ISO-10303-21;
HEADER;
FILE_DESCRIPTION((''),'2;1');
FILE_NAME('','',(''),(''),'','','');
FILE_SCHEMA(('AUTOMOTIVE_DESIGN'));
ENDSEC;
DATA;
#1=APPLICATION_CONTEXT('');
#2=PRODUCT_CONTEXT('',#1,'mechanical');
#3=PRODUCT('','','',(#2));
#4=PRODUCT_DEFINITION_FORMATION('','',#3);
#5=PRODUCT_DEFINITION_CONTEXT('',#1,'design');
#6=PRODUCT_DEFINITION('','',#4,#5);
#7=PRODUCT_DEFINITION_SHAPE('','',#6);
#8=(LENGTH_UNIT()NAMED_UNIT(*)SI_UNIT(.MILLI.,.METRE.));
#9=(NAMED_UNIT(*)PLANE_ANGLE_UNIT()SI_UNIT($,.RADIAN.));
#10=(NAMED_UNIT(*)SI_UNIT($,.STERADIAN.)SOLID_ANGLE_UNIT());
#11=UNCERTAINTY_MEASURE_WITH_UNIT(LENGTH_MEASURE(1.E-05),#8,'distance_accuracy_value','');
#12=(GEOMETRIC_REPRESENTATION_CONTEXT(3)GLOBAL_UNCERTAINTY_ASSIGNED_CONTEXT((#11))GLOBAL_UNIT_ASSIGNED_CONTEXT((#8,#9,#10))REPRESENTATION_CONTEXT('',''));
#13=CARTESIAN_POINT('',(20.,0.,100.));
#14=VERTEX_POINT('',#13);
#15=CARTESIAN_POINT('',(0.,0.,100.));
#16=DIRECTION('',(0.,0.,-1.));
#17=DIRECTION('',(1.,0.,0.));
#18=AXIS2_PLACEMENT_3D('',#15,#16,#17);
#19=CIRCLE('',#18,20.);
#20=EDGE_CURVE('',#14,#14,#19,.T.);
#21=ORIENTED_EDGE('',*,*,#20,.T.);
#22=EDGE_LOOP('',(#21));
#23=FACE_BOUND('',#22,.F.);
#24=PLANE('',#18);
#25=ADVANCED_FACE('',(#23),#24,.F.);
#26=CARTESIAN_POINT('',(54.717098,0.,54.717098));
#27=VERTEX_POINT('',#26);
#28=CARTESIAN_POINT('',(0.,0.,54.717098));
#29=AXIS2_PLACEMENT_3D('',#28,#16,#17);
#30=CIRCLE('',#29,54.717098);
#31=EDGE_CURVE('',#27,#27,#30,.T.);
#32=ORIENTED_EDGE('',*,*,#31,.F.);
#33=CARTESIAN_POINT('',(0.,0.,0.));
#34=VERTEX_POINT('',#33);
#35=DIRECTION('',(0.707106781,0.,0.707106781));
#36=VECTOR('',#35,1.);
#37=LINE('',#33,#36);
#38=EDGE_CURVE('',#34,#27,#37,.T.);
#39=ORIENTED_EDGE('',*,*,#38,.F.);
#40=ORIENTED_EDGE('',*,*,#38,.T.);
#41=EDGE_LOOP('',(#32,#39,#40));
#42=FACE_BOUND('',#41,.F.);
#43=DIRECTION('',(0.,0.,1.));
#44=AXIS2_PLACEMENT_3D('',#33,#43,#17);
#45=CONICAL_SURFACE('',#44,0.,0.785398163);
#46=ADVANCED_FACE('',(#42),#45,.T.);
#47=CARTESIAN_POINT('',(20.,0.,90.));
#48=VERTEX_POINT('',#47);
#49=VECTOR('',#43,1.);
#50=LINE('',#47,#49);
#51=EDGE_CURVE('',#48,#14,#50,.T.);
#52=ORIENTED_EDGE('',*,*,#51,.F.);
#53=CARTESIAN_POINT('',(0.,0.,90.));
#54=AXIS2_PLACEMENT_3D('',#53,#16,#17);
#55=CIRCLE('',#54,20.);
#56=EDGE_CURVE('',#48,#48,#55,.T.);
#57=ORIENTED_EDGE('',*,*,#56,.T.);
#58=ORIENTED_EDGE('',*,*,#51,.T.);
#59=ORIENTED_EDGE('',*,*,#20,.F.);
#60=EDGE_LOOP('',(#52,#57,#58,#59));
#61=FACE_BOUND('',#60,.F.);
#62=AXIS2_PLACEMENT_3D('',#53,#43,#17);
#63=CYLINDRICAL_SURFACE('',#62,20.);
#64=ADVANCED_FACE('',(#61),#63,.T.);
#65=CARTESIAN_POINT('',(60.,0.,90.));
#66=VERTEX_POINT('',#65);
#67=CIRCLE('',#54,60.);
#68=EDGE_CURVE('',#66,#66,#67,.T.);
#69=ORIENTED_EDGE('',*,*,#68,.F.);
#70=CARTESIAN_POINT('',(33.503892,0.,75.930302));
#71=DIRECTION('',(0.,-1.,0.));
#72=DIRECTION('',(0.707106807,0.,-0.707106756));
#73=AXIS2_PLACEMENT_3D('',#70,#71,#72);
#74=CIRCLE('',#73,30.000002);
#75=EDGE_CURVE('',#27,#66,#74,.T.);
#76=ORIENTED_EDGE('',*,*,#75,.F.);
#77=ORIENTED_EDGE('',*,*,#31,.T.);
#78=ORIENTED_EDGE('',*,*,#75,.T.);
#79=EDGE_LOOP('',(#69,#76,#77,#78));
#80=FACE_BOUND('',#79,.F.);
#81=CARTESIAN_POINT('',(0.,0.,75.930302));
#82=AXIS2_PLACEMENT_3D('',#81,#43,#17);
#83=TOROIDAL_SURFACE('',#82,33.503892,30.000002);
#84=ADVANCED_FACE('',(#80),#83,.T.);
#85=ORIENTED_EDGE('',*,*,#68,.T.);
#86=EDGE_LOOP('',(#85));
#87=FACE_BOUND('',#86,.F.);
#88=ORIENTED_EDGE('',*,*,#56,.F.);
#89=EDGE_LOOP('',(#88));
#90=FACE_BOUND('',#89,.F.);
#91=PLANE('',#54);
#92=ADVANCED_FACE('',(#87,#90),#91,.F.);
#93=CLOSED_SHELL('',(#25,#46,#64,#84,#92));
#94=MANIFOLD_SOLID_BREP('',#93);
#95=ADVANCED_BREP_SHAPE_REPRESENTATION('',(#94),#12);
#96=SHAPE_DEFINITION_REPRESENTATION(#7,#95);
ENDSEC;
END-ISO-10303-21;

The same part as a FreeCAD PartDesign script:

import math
import FreeCAD as App
import Part
import Sketcher
Q = App.Units.Quantity

doc = App.newDocument("Part")
body = doc.addObject("PartDesign::Body", "Body")

# Sketch on XZ plane
sketch1 = body.newObject("Sketcher::SketchObject", "Sketch")
sketch1.AttachmentSupport = (doc.getObject("XZ_Plane"), [""])
sketch1.MapMode = "FlatFace"
sketch1.addGeometry([
    Part.LineSegment(App.Vector(20, 100, 0), App.Vector(0, 100, 0)),  # 0
    Part.LineSegment(App.Vector(0, 100, 0), App.Vector(0, 0, 0)),  # 1
    Part.LineSegment(App.Vector(0, 0, 0), App.Vector(55, 55, 0)),  # 2
    Part.ArcOfCircle(Part.Circle(App.Vector(34, 76, 0), App.Vector(0, 0, 1), 30), math.radians(-45), math.radians(28)),  # 3
    Part.LineSegment(App.Vector(60, 90, 0), App.Vector(20, 90, 0)),  # 4
    Part.LineSegment(App.Vector(20, 90, 0), App.Vector(20, 100, 0)),  # 5
], False)
sketch1.addConstraint([
    Sketcher.Constraint("Coincident", 0, 2, 1, 1),
    Sketcher.Constraint("Coincident", 1, 2, 2, 1),
    Sketcher.Constraint("Tangent", 2, 2, 3, 1),
    Sketcher.Constraint("Coincident", 3, 2, 4, 1),
    Sketcher.Constraint("Coincident", 4, 2, 5, 1),
    Sketcher.Constraint("Coincident", 5, 2, 0, 1),
    Sketcher.Constraint("Horizontal", 0),
    Sketcher.Constraint("Vertical", 1),
    Sketcher.Constraint("Horizontal", 4),
    Sketcher.Constraint("Vertical", 5),
    Sketcher.Constraint("Coincident", 1, 2, -1, 1),
    Sketcher.Constraint("Radius", 3, Q("30.000002 mm")),
    Sketcher.Constraint("DistanceX", 0, 2, 0, 1, Q("20 mm")),
    Sketcher.Constraint("DistanceX", 4, 2, 4, 1, Q("40 mm")),
    Sketcher.Constraint("DistanceY", 1, 2, 1, 1, Q("100 mm")),
    Sketcher.Constraint("DistanceY", 5, 1, 5, 2, Q("10 mm")),
    Sketcher.Constraint("Angle", 2, Q("45 deg")),
])
revolution = body.newObject("PartDesign::Revolution", "Revolution")
revolution.Profile = sketch1
revolution.ReferenceAxis = (sketch1, ["V_Axis"])
revolution.Angle = 360

doc.recompute()
